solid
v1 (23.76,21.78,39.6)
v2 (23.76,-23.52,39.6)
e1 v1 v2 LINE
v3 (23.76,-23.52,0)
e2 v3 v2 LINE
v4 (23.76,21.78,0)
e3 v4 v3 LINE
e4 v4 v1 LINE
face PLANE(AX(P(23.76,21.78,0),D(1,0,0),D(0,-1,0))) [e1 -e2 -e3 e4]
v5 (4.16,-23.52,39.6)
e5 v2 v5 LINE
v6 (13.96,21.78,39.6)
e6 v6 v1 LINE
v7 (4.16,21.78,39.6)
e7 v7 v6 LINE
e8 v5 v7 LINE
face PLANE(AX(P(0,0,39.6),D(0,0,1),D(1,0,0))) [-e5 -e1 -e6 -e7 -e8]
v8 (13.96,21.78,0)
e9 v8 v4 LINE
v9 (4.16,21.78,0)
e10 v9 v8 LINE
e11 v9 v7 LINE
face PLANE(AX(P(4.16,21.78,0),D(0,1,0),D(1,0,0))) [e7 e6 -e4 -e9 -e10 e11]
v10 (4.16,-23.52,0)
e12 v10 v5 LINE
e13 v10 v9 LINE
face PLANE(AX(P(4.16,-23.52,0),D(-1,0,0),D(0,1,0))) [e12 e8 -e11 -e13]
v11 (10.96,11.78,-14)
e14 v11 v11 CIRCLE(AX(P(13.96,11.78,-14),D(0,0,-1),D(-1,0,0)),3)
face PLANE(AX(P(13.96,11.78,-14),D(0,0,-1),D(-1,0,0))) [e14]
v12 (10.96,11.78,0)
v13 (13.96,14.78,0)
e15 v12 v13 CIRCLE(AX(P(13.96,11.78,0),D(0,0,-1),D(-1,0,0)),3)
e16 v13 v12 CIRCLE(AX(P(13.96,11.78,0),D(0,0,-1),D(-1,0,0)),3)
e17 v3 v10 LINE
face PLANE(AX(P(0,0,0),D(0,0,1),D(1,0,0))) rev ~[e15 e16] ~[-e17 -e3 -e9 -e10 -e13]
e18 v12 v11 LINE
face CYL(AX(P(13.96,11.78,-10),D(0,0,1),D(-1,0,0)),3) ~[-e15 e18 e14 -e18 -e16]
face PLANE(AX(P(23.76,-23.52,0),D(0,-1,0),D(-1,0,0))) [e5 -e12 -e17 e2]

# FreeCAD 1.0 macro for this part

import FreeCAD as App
import Part
import Sketcher
from FreeCAD import Vector
Q = App.Units.Quantity


def add_polygon(sketch, points):
    """Adds a closed chain of lines whose ends are joined by coincident constraints."""
    first, n = sketch.GeometryCount, len(points)
    for a, b in zip(points, points[1:] + points[:1]):
        sketch.addGeometry(Part.LineSegment(App.Vector(*a, 0), App.Vector(*b, 0)), False)
    for i in range(n):
        sketch.addConstraint(Sketcher.Constraint("Coincident", first + i, 2, first + (i + 1) % n, 1))

doc = App.newDocument("Part")
body = doc.addObject("PartDesign::Body", "Body")

# Sketch on XY plane
sketch1 = body.newObject("Sketcher::SketchObject", "Sketch")
sketch1.AttachmentSupport = (doc.getObject("XY_Plane"), [""])
sketch1.MapMode = "FlatFace"
add_polygon(sketch1, [(14, 22), (4, 22), (4, -24), (24, -24), (24, 22)])  # lines 0-4
sketch1.addConstraint([
    Sketcher.Constraint("Horizontal", 0),
    Sketcher.Constraint("Vertical", 1),
    Sketcher.Constraint("Horizontal", 2),
    Sketcher.Constraint("Vertical", 3),
    Sketcher.Constraint("Horizontal", 4),
    Sketcher.Constraint("Equal", 0, 4),
    Sketcher.Constraint("DistanceX", 2, 1, 2, 2, Q("19.6 mm")),
    Sketcher.Constraint("DistanceY", 1, 2, 1, 1, Q("45.3 mm")),
    Sketcher.Constraint("DistanceX", -1, 1, 0, 2, Q("4.16 mm")),
    Sketcher.Constraint("DistanceY", -1, 1, 0, 2, Q("21.78 mm")),
])
pad1 = body.newObject("PartDesign::Pad", "Pad")
pad1.Profile = sketch1
pad1.Length = 39.6

# Sketch on XY plane
sketch2 = body.newObject("Sketcher::SketchObject", "Sketch001")
sketch2.AttachmentSupport = (doc.getObject("XY_Plane"), [""])
sketch2.MapMode = "FlatFace"
sketch2.addGeometry(Part.Circle(Vector(14, 11.8, 0), Vector(0, 0, 1), 3), False)
sketch2.addConstraint([
    Sketcher.Constraint("Diameter", 0, Q("6 mm")),
    Sketcher.Constraint("DistanceX", -1, 1, 0, 3, Q("13.96 mm")),
    Sketcher.Constraint("DistanceY", -1, 1, 0, 3, Q("11.78 mm")),
])
pad2 = body.newObject("PartDesign::Pad", "Pad001")
pad2.Profile = sketch2
pad2.Length = 10
pad2.Reversed = True

# Sketch on XY plane
sketch3 = body.newObject("Sketcher::SketchObject", "Sketch002")
sketch3.AttachmentSupport = (doc.getObject("XY_Plane"), [""])
sketch3.MapMode = "FlatFace"
sketch3.AttachmentOffset = App.Placement(Vector(0, 0, -10), App.Rotation())
sketch3.addGeometry(Part.Circle(Vector(14, 11.8, 0), Vector(0, 0, 1), 3), False)
sketch3.addConstraint([
    Sketcher.Constraint("Diameter", 0, Q("6 mm")),
    Sketcher.Constraint("DistanceX", -1, 1, 0, 3, Q("13.96 mm")),
    Sketcher.Constraint("DistanceY", -1, 1, 0, 3, Q("11.78 mm")),
])
pad3 = body.newObject("PartDesign::Pad", "Pad002")
pad3.Profile = sketch3
pad3.Length = 4
pad3.Reversed = True

doc.recompute()
